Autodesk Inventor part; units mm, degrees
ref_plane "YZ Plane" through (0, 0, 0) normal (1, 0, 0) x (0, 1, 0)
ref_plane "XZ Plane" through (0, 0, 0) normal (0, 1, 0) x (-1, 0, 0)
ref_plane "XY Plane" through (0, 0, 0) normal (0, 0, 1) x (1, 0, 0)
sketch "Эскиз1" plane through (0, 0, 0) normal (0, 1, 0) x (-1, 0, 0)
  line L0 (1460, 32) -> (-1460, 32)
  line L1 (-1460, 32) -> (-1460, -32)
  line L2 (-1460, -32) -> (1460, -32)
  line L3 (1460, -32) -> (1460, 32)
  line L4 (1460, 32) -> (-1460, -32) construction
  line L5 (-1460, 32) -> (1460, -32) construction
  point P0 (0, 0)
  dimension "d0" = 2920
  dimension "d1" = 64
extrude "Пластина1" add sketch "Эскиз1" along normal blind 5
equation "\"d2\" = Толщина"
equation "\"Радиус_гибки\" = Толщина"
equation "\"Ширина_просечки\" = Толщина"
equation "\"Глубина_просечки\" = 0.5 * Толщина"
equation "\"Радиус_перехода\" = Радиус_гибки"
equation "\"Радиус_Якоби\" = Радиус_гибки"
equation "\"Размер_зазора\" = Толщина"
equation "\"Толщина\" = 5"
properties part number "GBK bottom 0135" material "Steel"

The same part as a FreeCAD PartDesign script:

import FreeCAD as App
import Part
import Sketcher

V = App.Vector
Q = App.Units.Quantity


def add_polygon(sketch, points):
    """Adds a closed chain of lines whose ends are joined by coincident constraints."""
    first, n = sketch.GeometryCount, len(points)
    for a, b in zip(points, points[1:] + points[:1]):
        sketch.addGeometry(Part.LineSegment(App.Vector(*a, 0), App.Vector(*b, 0)), False)
    for i in range(n):
        sketch.addConstraint(Sketcher.Constraint("Coincident", first + i, 2, first + (i + 1) % n, 1))

doc = App.newDocument("Part")
body = doc.addObject("PartDesign::Body", "Body")

# Sketch on XZ plane
sketch1 = body.newObject("Sketcher::SketchObject", "Sketch")
sketch1.AttachmentSupport = (doc.getObject("XZ_Plane"), [""])
sketch1.MapMode = "FlatFace"
add_polygon(sketch1, [(-1460, -32), (-1460, 32), (1460, 32), (1460, -32)])  # lines 0-3
sketch1.addConstraint([
    Sketcher.Constraint("Vertical", 0),
    Sketcher.Constraint("Horizontal", 1),
    Sketcher.Constraint("Vertical", 2),
    Sketcher.Constraint("Horizontal", 3),
    Sketcher.Constraint("Symmetric", 0, 2, 2, 2, -1, 1),
    Sketcher.Constraint("DistanceX", 1, 1, 1, 2, Q("2920 mm")),
    Sketcher.Constraint("DistanceY", 0, 1, 0, 2, Q("64 mm")),
])
pad1 = body.newObject("PartDesign::Pad", "Pad")
pad1.Profile = sketch1
pad1.Length = 5
pad1.Reversed = True

doc.recompute()
